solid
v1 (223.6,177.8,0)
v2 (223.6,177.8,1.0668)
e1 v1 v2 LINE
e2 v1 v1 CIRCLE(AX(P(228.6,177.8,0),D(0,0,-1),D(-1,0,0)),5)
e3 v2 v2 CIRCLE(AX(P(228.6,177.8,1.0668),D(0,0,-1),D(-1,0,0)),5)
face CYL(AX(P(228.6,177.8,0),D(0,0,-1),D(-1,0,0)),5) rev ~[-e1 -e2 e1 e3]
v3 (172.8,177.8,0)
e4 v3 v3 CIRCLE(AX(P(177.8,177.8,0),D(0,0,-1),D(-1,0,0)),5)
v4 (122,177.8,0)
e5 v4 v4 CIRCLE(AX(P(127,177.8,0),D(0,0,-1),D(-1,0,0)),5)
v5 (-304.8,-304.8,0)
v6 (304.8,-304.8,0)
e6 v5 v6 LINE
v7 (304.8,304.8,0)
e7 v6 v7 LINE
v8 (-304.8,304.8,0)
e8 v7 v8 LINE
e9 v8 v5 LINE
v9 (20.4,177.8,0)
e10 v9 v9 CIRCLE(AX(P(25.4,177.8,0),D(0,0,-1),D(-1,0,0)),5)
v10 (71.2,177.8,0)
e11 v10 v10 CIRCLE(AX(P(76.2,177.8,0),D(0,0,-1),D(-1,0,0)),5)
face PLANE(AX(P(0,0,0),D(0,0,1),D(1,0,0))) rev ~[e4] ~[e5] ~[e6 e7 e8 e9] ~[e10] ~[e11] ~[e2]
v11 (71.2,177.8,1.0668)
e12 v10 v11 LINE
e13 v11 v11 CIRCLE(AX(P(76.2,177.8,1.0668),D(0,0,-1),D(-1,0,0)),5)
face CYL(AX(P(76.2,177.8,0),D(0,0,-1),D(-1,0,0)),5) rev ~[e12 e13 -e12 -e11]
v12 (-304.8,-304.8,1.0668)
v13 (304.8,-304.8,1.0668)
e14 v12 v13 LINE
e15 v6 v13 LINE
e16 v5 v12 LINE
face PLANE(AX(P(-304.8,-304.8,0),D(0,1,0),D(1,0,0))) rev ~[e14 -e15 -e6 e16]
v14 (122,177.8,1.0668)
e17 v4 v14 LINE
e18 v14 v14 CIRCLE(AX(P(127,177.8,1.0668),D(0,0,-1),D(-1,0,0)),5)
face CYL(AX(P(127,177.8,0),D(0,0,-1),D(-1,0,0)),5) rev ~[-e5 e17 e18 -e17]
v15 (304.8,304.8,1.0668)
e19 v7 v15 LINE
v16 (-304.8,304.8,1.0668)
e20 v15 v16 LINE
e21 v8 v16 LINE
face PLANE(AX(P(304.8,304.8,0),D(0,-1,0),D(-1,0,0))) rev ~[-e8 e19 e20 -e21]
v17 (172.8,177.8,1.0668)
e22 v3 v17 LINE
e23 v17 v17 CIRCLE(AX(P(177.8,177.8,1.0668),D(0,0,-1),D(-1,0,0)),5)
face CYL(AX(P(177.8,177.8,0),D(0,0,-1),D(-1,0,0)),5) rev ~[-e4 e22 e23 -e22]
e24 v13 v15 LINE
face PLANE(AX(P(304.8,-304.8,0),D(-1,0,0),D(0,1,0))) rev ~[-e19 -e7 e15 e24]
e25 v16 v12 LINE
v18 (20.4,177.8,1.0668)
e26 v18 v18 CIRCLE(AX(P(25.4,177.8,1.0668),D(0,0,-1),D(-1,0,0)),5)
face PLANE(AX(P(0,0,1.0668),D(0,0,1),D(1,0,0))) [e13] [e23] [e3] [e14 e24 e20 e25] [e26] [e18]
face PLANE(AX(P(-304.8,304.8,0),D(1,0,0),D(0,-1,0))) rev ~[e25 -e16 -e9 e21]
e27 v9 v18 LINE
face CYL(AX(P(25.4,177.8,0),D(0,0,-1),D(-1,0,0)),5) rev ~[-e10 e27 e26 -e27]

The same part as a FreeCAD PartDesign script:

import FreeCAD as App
import Part
import Sketcher
Q = App.Units.Quantity


def add_polygon(sketch, points):
    """Adds a closed chain of lines whose ends are joined by coincident constraints."""
    first, n = sketch.GeometryCount, len(points)
    for a, b in zip(points, points[1:] + points[:1]):
        sketch.addGeometry(Part.LineSegment(App.Vector(*a, 0), App.Vector(*b, 0)), False)
    for i in range(n):
        sketch.addConstraint(Sketcher.Constraint("Coincident", first + i, 2, first + (i + 1) % n, 1))

doc = App.newDocument("Part")
params = doc.addObject("Spreadsheet::Sheet", "Params")
for row, (alias, value) in enumerate([
    ("sketch1_width", "24 in"),
    ("pad1_length", "0.042 in"),
], start=1):
    params.set(f"A{row}", alias)
    params.set(f"B{row}", "=" + value)
    params.setAlias(f"B{row}", alias)

body = doc.addObject("PartDesign::Body", "Body")

sketch1 = body.newObject("Sketcher::SketchObject", "Sketch")
sketch1.AttachmentSupport = (doc.getObject("XY_Plane"), [""])
sketch1.MapMode = "FlatFace"
add_polygon(sketch1, [(-304.8, 304.8), (-304.8, -304.8), (304.8, -304.8), (304.8, 304.8)])
sketch1.addConstraint(Sketcher.Constraint("Vertical", 0))
sketch1.addConstraint(Sketcher.Constraint("Horizontal", 1))
sketch1.addConstraint(Sketcher.Constraint("Vertical", 2))
sketch1.addConstraint(Sketcher.Constraint("Horizontal", 3))
sketch1.addConstraint(Sketcher.Constraint("Symmetric", 0, 2, 2, 2, -1, 1))
sketch1.addConstraint(Sketcher.Constraint("Equal", 3, 0))
sketch1.addConstraint(Sketcher.Constraint("DistanceX", 1, 1, 1, 2, Q("24 in")))
sketch1.setExpression("Constraints[10]", "Params.sketch1_width")
pad1 = body.newObject("PartDesign::Pad", "Pad")
pad1.Profile = sketch1
pad1.setExpression("Length", "Params.pad1_length")

sketch2 = body.newObject("Sketcher::SketchObject", "Sketch001")
sketch2.AttachmentSupport = (doc.getObject("XY_Plane"), [""])
sketch2.MapMode = "FlatFace"
sketch2.addGeometry(Part.Circle(App.Vector(228.6, 177.8, 0), App.Vector(0, 0, 1), 5), False)
sketch2.addGeometry(Part.Circle(App.Vector(177.8, 177.8, 0), App.Vector(0, 0, 1), 5), False)
sketch2.addGeometry(Part.Circle(App.Vector(127, 177.8, 0), App.Vector(0, 0, 1), 5), False)
sketch2.addGeometry(Part.Circle(App.Vector(76.2, 177.8, 0), App.Vector(0, 0, 1), 5), False)
sketch2.addGeometry(Part.Circle(App.Vector(25.4, 177.8, 0), App.Vector(0, 0, 1), 5), False)
sketch2.addConstraint(Sketcher.Constraint("Equal", 0, 1))
sketch2.addConstraint(Sketcher.Constraint("Equal", 1, 2))
sketch2.addConstraint(Sketcher.Constraint("Equal", 2, 3))
sketch2.addConstraint(Sketcher.Constraint("Equal", 3, 4))
sketch2.addConstraint(Sketcher.Constraint("Horizontal", 0, 3, 1, 3))
sketch2.addConstraint(Sketcher.Constraint("Horizontal", 1, 3, 2, 3))
sketch2.addConstraint(Sketcher.Constraint("Horizontal", 2, 3, 3, 3))
sketch2.addConstraint(Sketcher.Constraint("Horizontal", 3, 3, 4, 3))
sketch2.addConstraint(Sketcher.Constraint("DistanceX", -1, 1, 2, 3, Q("5 in")))
sketch2.addConstraint(Sketcher.Constraint("DistanceX", -1, 1, 3, 3, Q("3 in")))
sketch2.addConstraint(Sketcher.Constraint("DistanceX", -1, 1, 4, 3, Q("1 in")))
sketch2.addConstraint(Sketcher.Constraint("DistanceX", 1, 3, 0, 3, Q("2 in")))
sketch2.addConstraint(Sketcher.Constraint("DistanceX", 2, 3, 1, 3, Q("2 in")))
sketch2.addConstraint(Sketcher.Constraint("Diameter", 0, Q("0.3937 in")))
sketch2.addConstraint(Sketcher.Constraint("DistanceY", -1, 1, 0, 3, Q("7 in")))
pocket1 = body.newObject("PartDesign::Pocket", "Pocket")
pocket1.Profile = sketch2
pocket1.Type = "ThroughAll"
pocket1.Reversed = True

doc.recompute()
